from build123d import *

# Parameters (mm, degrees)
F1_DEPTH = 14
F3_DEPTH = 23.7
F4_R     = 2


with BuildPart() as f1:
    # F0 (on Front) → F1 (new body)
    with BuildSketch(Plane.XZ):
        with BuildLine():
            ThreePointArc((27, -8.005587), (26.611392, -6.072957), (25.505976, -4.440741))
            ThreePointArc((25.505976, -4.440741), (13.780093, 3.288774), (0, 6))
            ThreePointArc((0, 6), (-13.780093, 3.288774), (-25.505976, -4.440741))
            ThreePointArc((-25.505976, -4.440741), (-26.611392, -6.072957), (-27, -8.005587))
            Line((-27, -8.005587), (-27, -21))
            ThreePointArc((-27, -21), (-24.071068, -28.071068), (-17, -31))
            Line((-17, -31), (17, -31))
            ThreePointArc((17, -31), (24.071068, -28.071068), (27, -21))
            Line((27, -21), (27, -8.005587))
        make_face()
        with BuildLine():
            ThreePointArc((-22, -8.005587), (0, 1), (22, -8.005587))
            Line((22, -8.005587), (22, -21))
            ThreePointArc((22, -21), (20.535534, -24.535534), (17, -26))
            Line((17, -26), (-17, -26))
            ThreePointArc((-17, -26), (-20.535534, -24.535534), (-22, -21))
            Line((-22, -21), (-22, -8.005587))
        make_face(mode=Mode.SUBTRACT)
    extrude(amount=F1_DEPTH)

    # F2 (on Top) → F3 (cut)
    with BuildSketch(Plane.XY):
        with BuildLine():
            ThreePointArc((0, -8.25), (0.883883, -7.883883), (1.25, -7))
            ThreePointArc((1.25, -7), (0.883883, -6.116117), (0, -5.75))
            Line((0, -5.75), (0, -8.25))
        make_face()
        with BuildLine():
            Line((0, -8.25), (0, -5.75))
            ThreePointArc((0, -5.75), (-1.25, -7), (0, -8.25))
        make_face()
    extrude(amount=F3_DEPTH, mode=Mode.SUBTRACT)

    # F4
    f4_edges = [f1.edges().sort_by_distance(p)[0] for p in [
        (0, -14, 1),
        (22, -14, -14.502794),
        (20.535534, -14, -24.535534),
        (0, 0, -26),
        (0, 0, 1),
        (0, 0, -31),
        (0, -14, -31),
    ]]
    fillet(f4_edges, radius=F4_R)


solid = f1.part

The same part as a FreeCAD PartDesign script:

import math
import FreeCAD as App
import Part
import Sketcher


def edges_at(feature, points):
    """Names of the edges that pass closest to the given points."""
    edges = feature.Shape.Edges
    near = lambda p: min(range(len(edges)), key=lambda i: edges[i].distToShape(Part.Vertex(*p))[0])
    return sorted({f"Edge{near(p) + 1}" for p in points})

doc = App.newDocument("Part")
body = doc.addObject("PartDesign::Body", "Body")

sketch1 = body.newObject("Sketcher::SketchObject", "Sketch")
sketch1.AttachmentSupport = (doc.getObject("XZ_Plane"), [""])
sketch1.MapMode = "FlatFace"
sketch1.addGeometry(Part.ArcOfCircle(Part.Circle(App.Vector(22, -8, 0), App.Vector(0, 0, 1), 5), math.radians(0), math.radians(45)), False)
sketch1.addGeometry(Part.ArcOfCircle(Part.Circle(App.Vector(0, -30.4, 0), App.Vector(0, 0, 1), 36.4), math.radians(45), math.radians(90)), False)
sketch1.addGeometry(Part.ArcOfCircle(Part.Circle(App.Vector(0, -30.4, 0), App.Vector(0, 0, 1), 36.4), math.radians(90), math.radians(135)), False)
sketch1.addGeometry(Part.ArcOfCircle(Part.Circle(App.Vector(-22, -8, 0), App.Vector(0, 0, 1), 5), math.radians(135), math.radians(180)), False)
sketch1.addGeometry(Part.LineSegment(App.Vector(-27, -8, 0), App.Vector(-27, -21, 0)), False)
sketch1.addGeometry(Part.ArcOfCircle(Part.Circle(App.Vector(-17, -21, 0), App.Vector(0, 0, 1), 10), math.radians(180), math.radians(270)), False)
sketch1.addGeometry(Part.LineSegment(App.Vector(-17, -31, 0), App.Vector(17, -31, 0)), False)
sketch1.addGeometry(Part.ArcOfCircle(Part.Circle(App.Vector(17, -21, 0), App.Vector(0, 0, 1), 10), math.radians(-90), math.radians(0)), False)
sketch1.addGeometry(Part.LineSegment(App.Vector(27, -21, 0), App.Vector(27, -8, 0)), False)
sketch1.addGeometry(Part.LineSegment(App.Vector(-22, -21, 0), App.Vector(-22, -8, 0)), False)
sketch1.addGeometry(Part.ArcOfCircle(Part.Circle(App.Vector(0, -30.4, 0), App.Vector(0, 0, 1), 31.4), math.radians(45), math.radians(135)), False)
sketch1.addGeometry(Part.LineSegment(App.Vector(22, -8, 0), App.Vector(22, -21, 0)), False)
sketch1.addGeometry(Part.ArcOfCircle(Part.Circle(App.Vector(17, -21, 0), App.Vector(0, 0, 1), 5), math.radians(-90), math.radians(0)), False)
sketch1.addGeometry(Part.LineSegment(App.Vector(17, -26, 0), App.Vector(-17, -26, 0)), False)
sketch1.addGeometry(Part.ArcOfCircle(Part.Circle(App.Vector(-17, -21, 0), App.Vector(0, 0, 1), 5), math.radians(180), math.radians(270)), False)
sketch1.addConstraint(Sketcher.Constraint("Tangent", 0, 2, 1, 1))
sketch1.addConstraint(Sketcher.Constraint("Tangent", 1, 2, 2, 1))
sketch1.addConstraint(Sketcher.Constraint("Tangent", 2, 2, 3, 1))
sketch1.addConstraint(Sketcher.Constraint("Tangent", 3, 2, 4, 1))
sketch1.addConstraint(Sketcher.Constraint("Tangent", 4, 2, 5, 1))
sketch1.addConstraint(Sketcher.Constraint("Tangent", 5, 2, 6, 1))
sketch1.addConstraint(Sketcher.Constraint("Tangent", 6, 2, 7, 1))
sketch1.addConstraint(Sketcher.Constraint("Tangent", 7, 2, 8, 1))
sketch1.addConstraint(Sketcher.Constraint("Tangent", 8, 2, 0, 1))
sketch1.addConstraint(Sketcher.Constraint("Coincident", 9, 2, 10, 2))
sketch1.addConstraint(Sketcher.Constraint("Coincident", 10, 1, 11, 1))
sketch1.addConstraint(Sketcher.Constraint("Tangent", 11, 2, 12, 2))
sketch1.addConstraint(Sketcher.Constraint("Tangent", 12, 1, 13, 1))
sketch1.addConstraint(Sketcher.Constraint("Tangent", 13, 2, 14, 2))
sketch1.addConstraint(Sketcher.Constraint("Tangent", 14, 1, 9, 1))
sketch1.addConstraint(Sketcher.Constraint("Vertical", 4))
sketch1.addConstraint(Sketcher.Constraint("Horizontal", 6))
sketch1.addConstraint(Sketcher.Constraint("Vertical", 8))
sketch1.addConstraint(Sketcher.Constraint("Vertical", 9))
sketch1.addConstraint(Sketcher.Constraint("Vertical", 11))
sketch1.addConstraint(Sketcher.Constraint("Horizontal", 13))
sketch1.addConstraint(Sketcher.Constraint("Coincident", 10, 3, 1, 3))
sketch1.addConstraint(Sketcher.Constraint("Coincident", 12, 3, 7, 3))
sketch1.addConstraint(Sketcher.Constraint("Coincident", 14, 3, 5, 3))
sketch1.addConstraint(Sketcher.Constraint("Coincident", 9, 2, 3, 3))
sketch1.addConstraint(Sketcher.Constraint("Coincident", 10, 1, 0, 3))
sketch1.addConstraint(Sketcher.Constraint("Equal", 5, 7))
sketch1.addConstraint(Sketcher.Constraint("Symmetric", 0, 3, 3, 3, -2))
sketch1.addConstraint(Sketcher.Constraint("PointOnObject", 1, 2, -2))
sketch1.addConstraint(Sketcher.Constraint("Radius", 5, 9.999999))
sketch1.addConstraint(Sketcher.Constraint("Radius", 12, 5.0))
sketch1.addConstraint(Sketcher.Constraint("DistanceX", 6, 1, 6, 2, 34.0))
sketch1.addConstraint(Sketcher.Constraint("DistanceY", 5, 3, -1, 1, 21.000001))
sketch1.addConstraint(Sketcher.Constraint("DistanceY", -1, 1, 1, 2, 6.0))
sketch1.addConstraint(Sketcher.Constraint("Radius", 10, 31.375001))
pad1 = body.newObject("PartDesign::Pad", "Pad")
pad1.Profile = sketch1
pad1.Length = 14

sketch2 = body.newObject("Sketcher::SketchObject", "Sketch001")
sketch2.AttachmentSupport = (doc.getObject("XY_Plane"), [""])
sketch2.MapMode = "FlatFace"
sketch2.addGeometry(Part.ArcOfCircle(Part.Circle(App.Vector(0, -7, 0), App.Vector(0, 0, 1), 1.3), math.radians(-90), math.radians(0)), False)
sketch2.addGeometry(Part.ArcOfCircle(Part.Circle(App.Vector(0, -7, 0), App.Vector(0, 0, 1), 1.3), math.radians(0), math.radians(90)), False)
sketch2.addGeometry(Part.ArcOfCircle(Part.Circle(App.Vector(0, -7, 0), App.Vector(0, 0, 1), 1.2), math.radians(90), math.radians(270)), False)
sketch2.addConstraint(Sketcher.Constraint("Coincident", 0, 2, 1, 1))
sketch2.addConstraint(Sketcher.Constraint("Tangent", 1, 2, 2, 1))
sketch2.addConstraint(Sketcher.Constraint("Tangent", 2, 2, 0, 1))
sketch2.addConstraint(Sketcher.Constraint("Equal", 1, 2))
sketch2.addConstraint(Sketcher.Constraint("PointOnObject", 0, 3, -2))
sketch2.addConstraint(Sketcher.Constraint("PointOnObject", 1, 2, -2))
sketch2.addConstraint(Sketcher.Constraint("PointOnObject", 2, 2, -2))
sketch2.addConstraint(Sketcher.Constraint("Horizontal", 2, 3, 0, 2))
sketch2.addConstraint(Sketcher.Constraint("Radius", 0, 1.250002))
sketch2.addConstraint(Sketcher.Constraint("DistanceY", 0, 3, -1, 1, 6.999998))
pocket1 = body.newObject("PartDesign::Pocket", "Pocket")
pocket1.Profile = sketch2
pocket1.Length = 23.7
pocket1.Reversed = True
doc.recompute()

fillet = body.newObject("PartDesign::Fillet", "Fillet")
fillet.Base = (pocket1, edges_at(pocket1, [
    (0, -14, 1),
    (22, -14, -14.503),
    (20.536, -14, -24.536),
    (0, 0, -26),
    (0, 0, 1),
    (0, 0, -31),
    (0, -14, -31),
]))
fillet.Radius = 2

doc.recompute()
